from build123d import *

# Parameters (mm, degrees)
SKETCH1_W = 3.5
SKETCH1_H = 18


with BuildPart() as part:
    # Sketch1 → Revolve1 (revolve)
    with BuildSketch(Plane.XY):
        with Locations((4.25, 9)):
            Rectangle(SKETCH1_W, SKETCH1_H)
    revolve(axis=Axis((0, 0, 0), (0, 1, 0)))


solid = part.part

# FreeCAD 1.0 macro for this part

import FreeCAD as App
import Part
import Sketcher

V = App.Vector

doc = App.newDocument("Part")
params = doc.addObject("Spreadsheet::Sheet", "Params")
for row, (alias, value) in enumerate([
    ("sketch1_height", "18 mm"),
    ("sketch1_width", "3.5 mm"),
    ("revolution_angle", "360 deg"),
], start=1):
    params.set(f"A{row}", alias)
    params.set(f"B{row}", "=" + value)
    params.setAlias(f"B{row}", alias)

body = doc.addObject("PartDesign::Body", "Body")

# Sketch on XY plane
sketch1 = body.newObject("Sketcher::SketchObject", "Sketch")
sketch1.AttachmentSupport = (doc.getObject("XY_Plane"), [""])
sketch1.MapMode = "FlatFace"
sketch1.addGeometry([
    Part.LineSegment(V(2.5, 18, 0), V(2.5, 0, 0)),
    Part.LineSegment(V(2.5, 0, 0), V(6, 0, 0)),
    Part.LineSegment(V(6, 0, 0), V(6, 18, 0)),
    Part.LineSegment(V(6, 18, 0), V(2.5, 18, 0)),
], False)
sketch1.addConstraint([
    Sketcher.Constraint("Coincident", 0, 2, 1, 1),
    Sketcher.Constraint("Coincident", 1, 2, 2, 1),
    Sketcher.Constraint("Coincident", 2, 2, 3, 1),
    Sketcher.Constraint("Coincident", 3, 2, 0, 1),
    Sketcher.Constraint("Vertical", 0),
    Sketcher.Constraint("Horizontal", 1),
    Sketcher.Constraint("Vertical", 2),
    Sketcher.Constraint("Horizontal", 3),
    Sketcher.Constraint("PointOnObject", 0, 2, -1),
    Sketcher.Constraint("DistanceY", 0, 2, 0, 1, 18.0),
    Sketcher.Constraint("DistanceX", 1, 1, 1, 2, 3.5),
    Sketcher.Constraint("DistanceX", -1, 1, 1, 2, 6.0),
])
sketch1.setExpression("Constraints[9]", "Params.sketch1_height")
sketch1.setExpression("Constraints[10]", "Params.sketch1_width")
revolution = body.newObject("PartDesign::Revolution", "Revolution")
revolution.Profile = sketch1
revolution.ReferenceAxis = (sketch1, ["V_Axis"])
revolution.setExpression("Angle", "Params.revolution_angle")

doc.recompute()
